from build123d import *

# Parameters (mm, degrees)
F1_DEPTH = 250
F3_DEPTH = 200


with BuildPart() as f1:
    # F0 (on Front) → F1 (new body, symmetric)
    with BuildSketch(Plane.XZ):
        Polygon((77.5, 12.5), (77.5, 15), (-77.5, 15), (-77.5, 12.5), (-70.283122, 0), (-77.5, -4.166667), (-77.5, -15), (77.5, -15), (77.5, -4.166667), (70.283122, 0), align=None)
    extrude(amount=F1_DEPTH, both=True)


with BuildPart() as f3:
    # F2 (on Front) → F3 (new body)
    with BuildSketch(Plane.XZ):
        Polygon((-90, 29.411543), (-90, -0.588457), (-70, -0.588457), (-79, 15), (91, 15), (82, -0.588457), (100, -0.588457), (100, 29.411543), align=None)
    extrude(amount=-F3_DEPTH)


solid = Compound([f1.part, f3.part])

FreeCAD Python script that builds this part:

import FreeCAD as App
import Part
import Sketcher
Q = App.Units.Quantity


def add_polygon(sketch, points):
    """Adds a closed chain of lines whose ends are joined by coincident constraints."""
    first, n = sketch.GeometryCount, len(points)
    for a, b in zip(points, points[1:] + points[:1]):
        sketch.addGeometry(Part.LineSegment(App.Vector(*a, 0), App.Vector(*b, 0)), False)
    for i in range(n):
        sketch.addConstraint(Sketcher.Constraint("Coincident", first + i, 2, first + (i + 1) % n, 1))

doc = App.newDocument("Part")
params = doc.addObject("Spreadsheet::Sheet", "Params")
for row, (alias, value) in enumerate([
    ("sketch1_width", "155 mm"),
    ("sketch1_height", "2.5 mm"),
    ("pad1_length", "500 mm"),
    ("sketch2_width", "20 mm"),
    ("sketch2_width2", "170 mm"),
    ("sketch2_width3", "18 mm"),
    ("sketch2_width4", "190 mm"),
    ("sketch2_height", "30 mm"),
    ("pad2_length", "200 mm"),
], start=1):
    params.set(f"A{row}", alias)
    params.set(f"B{row}", "=" + value)
    params.setAlias(f"B{row}", alias)

body = doc.addObject("PartDesign::Body", "Body")

# Sketch on XZ plane
sketch1 = body.newObject("Sketcher::SketchObject", "Sketch")
sketch1.AttachmentSupport = (doc.getObject("XZ_Plane"), [""])
sketch1.MapMode = "FlatFace"
add_polygon(sketch1, [(77.5, 12.5), (77.5, 15), (-77.5, 15), (-77.5, 12.5), (-70.3, 0), (-77.5, -4.2), (-77.5, -15), (77.5, -15), (77.5, -4.2), (70.3, 0)])  # lines 0-9
sketch1.addConstraint([
    Sketcher.Constraint("Vertical", 0),
    Sketcher.Constraint("Horizontal", 1),
    Sketcher.Constraint("Vertical", 2),
    Sketcher.Constraint("Vertical", 5),
    Sketcher.Constraint("Horizontal", 6),
    Sketcher.Constraint("Vertical", 7),
    Sketcher.Constraint("Symmetric", 0, 2, 5, 2, -1, 1),
    Sketcher.Constraint("Symmetric", 3, 2, 8, 2, -1, 1),
    Sketcher.Constraint("Symmetric", 4, 2, 7, 2, -2),
    Sketcher.Constraint("Symmetric", 2, 2, 9, 2, -2),
    Sketcher.Constraint("PointOnObject", 3, 2, -1),
    Sketcher.Constraint("Perpendicular", 3, 4),
    Sketcher.Constraint("DistanceX", 1, 2, 1, 1, Q("155 mm")),
    Sketcher.Constraint("Angle", 3, Q("-60.000001 deg")),
    Sketcher.Constraint("DistanceY", 0, 1, 0, 2, Q("2.5 mm")),
    Sketcher.Constraint("DistanceY", -1, 1, 0, 2, Q("15 mm")),
])
sketch1.setExpression("Constraints[22]", "Params.sketch1_width")
sketch1.setExpression("Constraints[24]", "Params.sketch1_height")
pad1 = body.newObject("PartDesign::Pad", "Pad")
pad1.Profile = sketch1
pad1.setExpression("Length", "Params.pad1_length")
pad1.Midplane = True
body2 = doc.addObject("PartDesign::Body", "Body001")

# Sketch on XZ plane
sketch2 = body2.newObject("Sketcher::SketchObject", "Sketch001")
sketch2.AttachmentSupport = (doc.getObject("XZ_Plane001"), [""])
sketch2.MapMode = "FlatFace"
add_polygon(sketch2, [(-90, 29), (-90, -1), (-70, -1), (-79, 15), (91, 15), (82, -1), (100, -1), (100, 29)])  # lines 0-7
sketch2.addConstraint([
    Sketcher.Constraint("Vertical", 0),
    Sketcher.Constraint("Horizontal", 1),
    Sketcher.Constraint("Horizontal", 3),
    Sketcher.Constraint("Horizontal", 5),
    Sketcher.Constraint("Vertical", 6),
    Sketcher.Constraint("Horizontal", 7),
    Sketcher.Constraint("Horizontal", 1, 2, 4, 2),
    Sketcher.Constraint("Equal", 2, 4),
    Sketcher.Constraint("DistanceX", 1, 1, 1, 2, Q("20 mm")),
    Sketcher.Constraint("DistanceX", 3, 1, 3, 2, Q("170 mm")),
    Sketcher.Constraint("DistanceX", 5, 1, 5, 2, Q("18 mm")),
    Sketcher.Constraint("DistanceX", 7, 2, 7, 1, Q("190 mm")),
    Sketcher.Constraint("DistanceY", 0, 2, 0, 1, Q("30 mm")),
    Sketcher.Constraint("Angle", 2, Q("120 deg")),
    Sketcher.Constraint("DistanceX", 0, 2, -1, 1, Q("90 mm")),
    Sketcher.Constraint("DistanceY", -1, 1, 2, 2, Q("15 mm")),
])
sketch2.setExpression("Constraints[16]", "Params.sketch2_width")
sketch2.setExpression("Constraints[17]", "Params.sketch2_width2")
sketch2.setExpression("Constraints[18]", "Params.sketch2_width3")
sketch2.setExpression("Constraints[19]", "Params.sketch2_width4")
sketch2.setExpression("Constraints[20]", "Params.sketch2_height")
pad2 = body2.newObject("PartDesign::Pad", "Pad001")
pad2.Profile = sketch2
pad2.setExpression("Length", "Params.pad2_length")
pad2.Reversed = True

doc.recompute()
